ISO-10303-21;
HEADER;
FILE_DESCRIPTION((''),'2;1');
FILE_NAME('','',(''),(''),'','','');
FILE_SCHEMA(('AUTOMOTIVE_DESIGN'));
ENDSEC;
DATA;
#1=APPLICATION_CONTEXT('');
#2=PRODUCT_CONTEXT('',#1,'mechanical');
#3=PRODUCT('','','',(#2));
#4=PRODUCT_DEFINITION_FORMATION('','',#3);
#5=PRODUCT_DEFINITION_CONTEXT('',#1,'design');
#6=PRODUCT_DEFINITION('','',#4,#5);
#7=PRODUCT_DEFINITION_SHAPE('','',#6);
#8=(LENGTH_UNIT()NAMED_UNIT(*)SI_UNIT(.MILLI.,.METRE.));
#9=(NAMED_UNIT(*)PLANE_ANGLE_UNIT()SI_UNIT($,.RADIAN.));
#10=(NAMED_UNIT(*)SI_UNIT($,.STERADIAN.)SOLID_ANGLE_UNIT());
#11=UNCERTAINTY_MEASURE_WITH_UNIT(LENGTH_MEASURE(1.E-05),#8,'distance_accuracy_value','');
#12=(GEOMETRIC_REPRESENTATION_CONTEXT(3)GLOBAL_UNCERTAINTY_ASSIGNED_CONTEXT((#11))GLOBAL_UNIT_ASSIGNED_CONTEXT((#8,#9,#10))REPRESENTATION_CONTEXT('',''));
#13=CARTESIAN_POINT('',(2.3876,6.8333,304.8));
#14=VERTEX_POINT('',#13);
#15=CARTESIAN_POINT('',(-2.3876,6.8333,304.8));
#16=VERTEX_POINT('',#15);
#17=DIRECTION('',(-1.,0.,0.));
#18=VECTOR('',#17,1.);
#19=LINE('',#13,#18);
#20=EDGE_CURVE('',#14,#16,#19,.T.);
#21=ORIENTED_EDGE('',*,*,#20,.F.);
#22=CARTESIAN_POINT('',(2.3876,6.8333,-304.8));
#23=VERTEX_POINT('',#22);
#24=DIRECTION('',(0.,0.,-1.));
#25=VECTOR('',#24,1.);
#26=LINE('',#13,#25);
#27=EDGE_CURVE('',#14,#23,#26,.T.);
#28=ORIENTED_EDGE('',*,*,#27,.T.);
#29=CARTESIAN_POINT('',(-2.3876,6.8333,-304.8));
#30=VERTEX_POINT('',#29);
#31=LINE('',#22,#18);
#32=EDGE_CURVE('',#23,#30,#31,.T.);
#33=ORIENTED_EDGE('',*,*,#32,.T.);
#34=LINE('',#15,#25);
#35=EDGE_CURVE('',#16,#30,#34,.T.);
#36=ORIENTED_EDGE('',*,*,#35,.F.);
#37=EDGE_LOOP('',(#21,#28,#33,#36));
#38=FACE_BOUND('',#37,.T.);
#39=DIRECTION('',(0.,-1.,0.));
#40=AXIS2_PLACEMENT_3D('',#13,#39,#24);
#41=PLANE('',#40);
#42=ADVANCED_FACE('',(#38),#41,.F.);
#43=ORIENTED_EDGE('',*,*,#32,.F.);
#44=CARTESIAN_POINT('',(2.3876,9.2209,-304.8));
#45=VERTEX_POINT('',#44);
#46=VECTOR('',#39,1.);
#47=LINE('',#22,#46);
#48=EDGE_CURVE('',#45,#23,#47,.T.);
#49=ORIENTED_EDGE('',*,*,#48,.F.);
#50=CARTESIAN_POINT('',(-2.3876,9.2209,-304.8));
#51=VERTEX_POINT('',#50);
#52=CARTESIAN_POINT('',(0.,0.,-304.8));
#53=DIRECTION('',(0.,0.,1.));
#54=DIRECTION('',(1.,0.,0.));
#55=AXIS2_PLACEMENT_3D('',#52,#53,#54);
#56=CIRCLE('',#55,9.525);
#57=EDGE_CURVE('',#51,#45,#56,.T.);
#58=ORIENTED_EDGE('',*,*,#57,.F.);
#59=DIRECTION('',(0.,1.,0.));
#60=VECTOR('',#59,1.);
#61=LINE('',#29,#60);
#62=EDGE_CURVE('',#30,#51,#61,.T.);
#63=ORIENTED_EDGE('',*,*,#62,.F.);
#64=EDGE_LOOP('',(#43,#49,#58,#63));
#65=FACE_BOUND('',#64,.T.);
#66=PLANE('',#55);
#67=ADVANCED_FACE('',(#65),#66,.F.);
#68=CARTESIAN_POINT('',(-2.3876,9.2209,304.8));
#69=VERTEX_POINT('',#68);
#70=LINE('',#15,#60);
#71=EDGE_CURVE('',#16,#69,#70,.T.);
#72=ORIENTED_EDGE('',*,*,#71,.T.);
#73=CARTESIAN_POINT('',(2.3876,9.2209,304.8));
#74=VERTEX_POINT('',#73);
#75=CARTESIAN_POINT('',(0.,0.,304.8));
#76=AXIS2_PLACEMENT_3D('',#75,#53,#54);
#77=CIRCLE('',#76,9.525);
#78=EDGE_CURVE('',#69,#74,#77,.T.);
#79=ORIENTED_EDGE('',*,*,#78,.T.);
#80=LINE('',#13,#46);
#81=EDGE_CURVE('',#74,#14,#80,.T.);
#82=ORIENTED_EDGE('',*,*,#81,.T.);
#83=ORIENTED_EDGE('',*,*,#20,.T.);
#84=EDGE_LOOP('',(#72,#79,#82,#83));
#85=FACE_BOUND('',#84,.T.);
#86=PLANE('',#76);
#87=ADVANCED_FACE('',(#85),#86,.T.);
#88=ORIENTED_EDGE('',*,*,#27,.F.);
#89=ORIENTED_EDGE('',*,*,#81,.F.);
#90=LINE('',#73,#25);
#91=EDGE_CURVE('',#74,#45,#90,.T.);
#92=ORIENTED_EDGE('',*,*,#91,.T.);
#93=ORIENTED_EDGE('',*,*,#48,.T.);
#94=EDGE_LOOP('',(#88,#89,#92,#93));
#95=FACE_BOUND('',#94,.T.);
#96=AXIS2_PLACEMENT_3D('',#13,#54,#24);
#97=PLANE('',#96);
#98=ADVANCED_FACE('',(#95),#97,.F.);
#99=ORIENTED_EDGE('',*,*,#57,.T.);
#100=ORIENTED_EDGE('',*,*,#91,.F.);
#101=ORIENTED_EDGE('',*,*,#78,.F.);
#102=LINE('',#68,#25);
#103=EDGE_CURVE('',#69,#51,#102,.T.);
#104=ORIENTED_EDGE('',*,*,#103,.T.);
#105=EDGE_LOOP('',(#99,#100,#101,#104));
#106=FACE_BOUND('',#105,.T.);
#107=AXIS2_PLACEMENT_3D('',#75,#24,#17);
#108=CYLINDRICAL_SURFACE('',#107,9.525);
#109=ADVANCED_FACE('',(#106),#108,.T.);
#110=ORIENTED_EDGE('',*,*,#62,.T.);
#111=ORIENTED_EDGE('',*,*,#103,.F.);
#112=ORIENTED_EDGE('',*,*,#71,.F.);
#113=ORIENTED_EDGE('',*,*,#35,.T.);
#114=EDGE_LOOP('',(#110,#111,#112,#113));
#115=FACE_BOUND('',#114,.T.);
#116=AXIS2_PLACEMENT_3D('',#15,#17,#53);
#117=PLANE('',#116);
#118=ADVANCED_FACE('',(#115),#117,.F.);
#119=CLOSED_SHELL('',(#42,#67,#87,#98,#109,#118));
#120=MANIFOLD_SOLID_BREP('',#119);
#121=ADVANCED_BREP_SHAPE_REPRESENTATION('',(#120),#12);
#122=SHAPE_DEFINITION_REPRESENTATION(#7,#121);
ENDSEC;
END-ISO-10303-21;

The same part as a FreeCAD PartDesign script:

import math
import FreeCAD as App
import Part
import Sketcher
Q = App.Units.Quantity

doc = App.newDocument("Part")
body = doc.addObject("PartDesign::Body", "Body")

sketch1 = body.newObject("Sketcher::SketchObject", "Sketch")
sketch1.AttachmentSupport = (doc.getObject("XY_Plane"), [""])
sketch1.MapMode = "FlatFace"
sketch1.addGeometry([
    Part.LineSegment(App.Vector(-2.3876, 6.8333, 0), App.Vector(-2.3876, 9.2209, 0)),
    Part.ArcOfCircle(Part.Circle(App.Vector(0, 0, 0), App.Vector(0, 0, 1), 9.525), math.radians(104.516966), math.radians(435.483034)),
    Part.LineSegment(App.Vector(2.3876, 9.2209, 0), App.Vector(2.3876, 6.8333, 0)),
    Part.LineSegment(App.Vector(2.3876, 6.8333, 0), App.Vector(-2.3876, 6.8333, 0)),
], False)
sketch1.addConstraint([
    Sketcher.Constraint("Coincident", 0, 2, 1, 1),
    Sketcher.Constraint("Coincident", 1, 2, 2, 1),
    Sketcher.Constraint("Coincident", 2, 2, 3, 1),
    Sketcher.Constraint("Coincident", 3, 2, 0, 1),
    Sketcher.Constraint("Vertical", 0),
    Sketcher.Constraint("Vertical", 2),
    Sketcher.Constraint("Horizontal", 3),
    Sketcher.Constraint("Coincident", 1, 3, -1, 1),
    Sketcher.Constraint("Horizontal", 0, 2, 1, 2),
    Sketcher.Constraint("Radius", 1, Q("0.375 in")),
    Sketcher.Constraint("DistanceX", 3, 2, 3, 1, Q("0.188 in")),
    Sketcher.Constraint("DistanceY", 0, 1, 0, 2, Q("0.094 in")),
])
pad1 = body.newObject("PartDesign::Pad", "Pad")
pad1.Profile = sketch1
pad1.Type = "TwoLengths"
pad1.Length = Q("12 in")
pad1.Length2 = Q("12 in")

doc.recompute()
